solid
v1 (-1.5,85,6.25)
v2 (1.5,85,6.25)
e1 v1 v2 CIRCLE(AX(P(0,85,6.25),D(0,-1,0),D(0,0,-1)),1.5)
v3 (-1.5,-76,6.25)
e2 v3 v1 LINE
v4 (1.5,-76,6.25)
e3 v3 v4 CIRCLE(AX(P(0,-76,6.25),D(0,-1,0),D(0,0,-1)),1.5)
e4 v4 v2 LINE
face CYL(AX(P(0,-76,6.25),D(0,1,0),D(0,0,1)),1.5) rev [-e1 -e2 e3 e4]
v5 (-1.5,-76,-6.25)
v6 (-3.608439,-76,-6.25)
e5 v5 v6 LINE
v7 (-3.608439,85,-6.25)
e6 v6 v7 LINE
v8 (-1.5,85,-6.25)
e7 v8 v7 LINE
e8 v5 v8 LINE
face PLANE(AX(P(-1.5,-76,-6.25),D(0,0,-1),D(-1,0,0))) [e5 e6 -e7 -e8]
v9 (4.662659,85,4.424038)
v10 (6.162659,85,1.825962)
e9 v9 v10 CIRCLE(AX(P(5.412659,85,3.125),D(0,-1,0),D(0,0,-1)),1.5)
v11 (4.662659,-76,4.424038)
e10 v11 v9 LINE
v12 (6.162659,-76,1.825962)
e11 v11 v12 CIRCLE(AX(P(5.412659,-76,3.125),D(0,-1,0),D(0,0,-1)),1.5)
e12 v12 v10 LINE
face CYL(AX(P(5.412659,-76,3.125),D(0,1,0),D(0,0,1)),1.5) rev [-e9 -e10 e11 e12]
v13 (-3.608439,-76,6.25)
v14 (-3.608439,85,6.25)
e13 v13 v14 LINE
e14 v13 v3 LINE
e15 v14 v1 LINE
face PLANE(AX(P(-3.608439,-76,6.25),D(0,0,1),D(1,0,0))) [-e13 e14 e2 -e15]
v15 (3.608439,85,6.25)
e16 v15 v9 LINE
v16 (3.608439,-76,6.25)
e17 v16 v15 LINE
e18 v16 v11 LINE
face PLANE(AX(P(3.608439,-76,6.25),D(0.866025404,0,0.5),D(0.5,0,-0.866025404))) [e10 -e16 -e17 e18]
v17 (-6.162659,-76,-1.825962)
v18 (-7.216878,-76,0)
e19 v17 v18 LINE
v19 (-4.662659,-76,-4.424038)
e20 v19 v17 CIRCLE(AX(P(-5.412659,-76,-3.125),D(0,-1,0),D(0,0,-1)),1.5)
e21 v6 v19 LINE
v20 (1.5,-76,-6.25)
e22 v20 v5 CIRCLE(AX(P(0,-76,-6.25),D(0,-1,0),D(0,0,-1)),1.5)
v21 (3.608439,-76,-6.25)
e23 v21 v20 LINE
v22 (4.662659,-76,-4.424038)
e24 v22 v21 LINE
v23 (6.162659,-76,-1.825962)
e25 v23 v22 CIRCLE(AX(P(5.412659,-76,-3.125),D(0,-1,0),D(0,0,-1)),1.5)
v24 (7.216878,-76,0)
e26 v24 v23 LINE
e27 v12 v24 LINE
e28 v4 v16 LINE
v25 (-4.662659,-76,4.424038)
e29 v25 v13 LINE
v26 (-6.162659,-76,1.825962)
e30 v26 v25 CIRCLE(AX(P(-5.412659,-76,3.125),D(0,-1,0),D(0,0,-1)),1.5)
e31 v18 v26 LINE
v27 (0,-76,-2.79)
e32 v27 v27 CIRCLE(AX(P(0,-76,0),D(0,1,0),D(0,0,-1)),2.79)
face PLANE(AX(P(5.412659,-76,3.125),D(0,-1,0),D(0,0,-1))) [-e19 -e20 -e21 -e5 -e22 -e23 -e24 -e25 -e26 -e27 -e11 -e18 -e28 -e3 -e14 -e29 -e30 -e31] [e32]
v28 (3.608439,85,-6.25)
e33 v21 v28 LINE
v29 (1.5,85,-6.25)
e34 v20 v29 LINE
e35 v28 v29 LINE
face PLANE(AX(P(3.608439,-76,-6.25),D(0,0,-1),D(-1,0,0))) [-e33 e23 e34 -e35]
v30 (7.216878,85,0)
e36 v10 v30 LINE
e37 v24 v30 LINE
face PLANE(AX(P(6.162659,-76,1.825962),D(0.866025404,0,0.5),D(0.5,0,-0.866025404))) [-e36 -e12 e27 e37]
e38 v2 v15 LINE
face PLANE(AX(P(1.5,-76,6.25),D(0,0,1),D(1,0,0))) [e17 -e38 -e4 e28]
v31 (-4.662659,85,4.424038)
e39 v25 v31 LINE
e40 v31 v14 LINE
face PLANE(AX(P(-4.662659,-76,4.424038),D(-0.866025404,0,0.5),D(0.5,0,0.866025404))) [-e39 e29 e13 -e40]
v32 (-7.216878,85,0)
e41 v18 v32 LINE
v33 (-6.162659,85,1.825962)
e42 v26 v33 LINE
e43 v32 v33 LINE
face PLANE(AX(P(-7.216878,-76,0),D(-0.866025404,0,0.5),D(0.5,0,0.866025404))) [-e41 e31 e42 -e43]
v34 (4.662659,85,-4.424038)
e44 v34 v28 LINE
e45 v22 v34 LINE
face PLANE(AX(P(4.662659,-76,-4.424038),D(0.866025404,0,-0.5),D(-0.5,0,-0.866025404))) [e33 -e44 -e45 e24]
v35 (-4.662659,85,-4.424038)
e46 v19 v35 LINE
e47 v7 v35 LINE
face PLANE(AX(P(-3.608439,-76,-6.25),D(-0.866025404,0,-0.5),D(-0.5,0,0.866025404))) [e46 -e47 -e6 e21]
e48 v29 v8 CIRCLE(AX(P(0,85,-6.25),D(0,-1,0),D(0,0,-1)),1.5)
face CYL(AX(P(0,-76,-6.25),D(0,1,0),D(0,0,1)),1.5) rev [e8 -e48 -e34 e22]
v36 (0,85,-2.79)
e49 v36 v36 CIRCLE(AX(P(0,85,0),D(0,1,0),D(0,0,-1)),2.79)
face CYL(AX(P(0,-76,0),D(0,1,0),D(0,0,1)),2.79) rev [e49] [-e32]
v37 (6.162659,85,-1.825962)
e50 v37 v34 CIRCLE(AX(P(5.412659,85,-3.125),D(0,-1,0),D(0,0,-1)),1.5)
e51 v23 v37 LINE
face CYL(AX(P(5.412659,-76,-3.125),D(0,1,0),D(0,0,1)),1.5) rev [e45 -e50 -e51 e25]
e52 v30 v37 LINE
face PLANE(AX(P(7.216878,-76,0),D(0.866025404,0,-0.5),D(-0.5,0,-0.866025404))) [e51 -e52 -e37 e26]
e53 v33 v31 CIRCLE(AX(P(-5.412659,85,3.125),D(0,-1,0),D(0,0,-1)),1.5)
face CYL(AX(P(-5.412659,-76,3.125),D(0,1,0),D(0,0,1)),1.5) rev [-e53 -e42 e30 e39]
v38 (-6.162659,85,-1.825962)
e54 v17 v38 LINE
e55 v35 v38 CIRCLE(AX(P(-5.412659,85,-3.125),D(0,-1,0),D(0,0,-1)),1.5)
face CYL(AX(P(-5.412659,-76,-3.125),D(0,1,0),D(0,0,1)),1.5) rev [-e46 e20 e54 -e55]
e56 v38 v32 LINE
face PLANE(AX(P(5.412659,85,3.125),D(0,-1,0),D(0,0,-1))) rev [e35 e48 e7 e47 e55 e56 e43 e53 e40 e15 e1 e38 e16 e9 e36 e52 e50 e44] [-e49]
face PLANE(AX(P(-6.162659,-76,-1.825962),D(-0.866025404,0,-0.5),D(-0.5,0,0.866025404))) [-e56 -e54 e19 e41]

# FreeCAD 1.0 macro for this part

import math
import FreeCAD as App
import Part
import Sketcher
from FreeCAD import Vector
Q = App.Units.Quantity

doc = App.newDocument("Part")
body = doc.addObject("PartDesign::Body", "Body")

sketch1 = doc.addObject("Sketcher::SketchObject", "Sketch")
body.addObject(sketch1)
sketch1.AttachmentSupport = (doc.XZ_Plane, [""])
sketch1.MapMode = "FlatFace"
sketch1.AttachmentOffset = App.Placement(Vector(0, 0, -85), App.Rotation())
sketch1.addGeometry(Part.LineSegment(Vector(6.2, 1.8, 0), Vector(7.2, 0, 0)), False)
sketch1.addGeometry(Part.LineSegment(Vector(7.2, 0, 0), Vector(6.2, -1.8, 0)), False)
sketch1.addGeometry(Part.ArcOfCircle(Part.Circle(Vector(5.4, -3.1, 0), Vector(0, 0, 1), 1.5), math.radians(60), math.radians(240)), False)
sketch1.addGeometry(Part.LineSegment(Vector(4.7, -4.4, 0), Vector(3.6, -6.2, 0)), False)
sketch1.addGeometry(Part.LineSegment(Vector(3.6, -6.2, 0), Vector(1.5, -6.2, 0)), False)
sketch1.addGeometry(Part.ArcOfCircle(Part.Circle(Vector(0, -6.2, 0), Vector(0, 0, 1), 1.5), math.radians(0), math.radians(180)), False)
sketch1.addGeometry(Part.LineSegment(Vector(-1.5, -6.2, 0), Vector(-3.6, -6.2, 0)), False)
sketch1.addGeometry(Part.LineSegment(Vector(-3.6, -6.2, 0), Vector(-4.7, -4.4, 0)), False)
sketch1.addGeometry(Part.ArcOfCircle(Part.Circle(Vector(-5.4, -3.1, 0), Vector(0, 0, 1), 1.5), math.radians(-60), math.radians(120)), False)
sketch1.addGeometry(Part.LineSegment(Vector(-6.2, -1.8, 0), Vector(-7.2, 0, 0)), False)
sketch1.addGeometry(Part.LineSegment(Vector(-7.2, 0, 0), Vector(-6.2, 1.8, 0)), False)
sketch1.addGeometry(Part.ArcOfCircle(Part.Circle(Vector(-5.4, 3.1, 0), Vector(0, 0, 1), 1.5), math.radians(-120), math.radians(60)), False)
sketch1.addGeometry(Part.LineSegment(Vector(-4.7, 4.4, 0), Vector(-3.6, 6.2, 0)), False)
sketch1.addGeometry(Part.LineSegment(Vector(-3.6, 6.2, 0), Vector(-1.5, 6.2, 0)), False)
sketch1.addGeometry(Part.ArcOfCircle(Part.Circle(Vector(0, 6.2, 0), Vector(0, 0, 1), 1.5), math.radians(180), math.radians(360)), False)
sketch1.addGeometry(Part.LineSegment(Vector(1.5, 6.2, 0), Vector(3.6, 6.2, 0)), False)
sketch1.addGeometry(Part.LineSegment(Vector(3.6, 6.2, 0), Vector(4.7, 4.4, 0)), False)
sketch1.addGeometry(Part.ArcOfCircle(Part.Circle(Vector(5.4, 3.1, 0), Vector(0, 0, 1), 1.5), math.radians(120), math.radians(300)), False)
sketch1.addGeometry(Part.Circle(Vector(0, 0, 0), Vector(0, 0, 1), 2.8), False)
sketch1.addConstraint(Sketcher.Constraint("Coincident", 0, 2, 1, 1))
sketch1.addConstraint(Sketcher.Constraint("Coincident", 1, 2, 2, 1))
sketch1.addConstraint(Sketcher.Constraint("Coincident", 2, 2, 3, 1))
sketch1.addConstraint(Sketcher.Constraint("Coincident", 3, 2, 4, 1))
sketch1.addConstraint(Sketcher.Constraint("Coincident", 4, 2, 5, 1))
sketch1.addConstraint(Sketcher.Constraint("Coincident", 5, 2, 6, 1))
sketch1.addConstraint(Sketcher.Constraint("Coincident", 6, 2, 7, 1))
sketch1.addConstraint(Sketcher.Constraint("Coincident", 7, 2, 8, 1))
sketch1.addConstraint(Sketcher.Constraint("Coincident", 8, 2, 9, 1))
sketch1.addConstraint(Sketcher.Constraint("Coincident", 9, 2, 10, 1))
sketch1.addConstraint(Sketcher.Constraint("Coincident", 10, 2, 11, 1))
sketch1.addConstraint(Sketcher.Constraint("Coincident", 11, 2, 12, 1))
sketch1.addConstraint(Sketcher.Constraint("Coincident", 12, 2, 13, 1))
sketch1.addConstraint(Sketcher.Constraint("Coincident", 13, 2, 14, 1))
sketch1.addConstraint(Sketcher.Constraint("Coincident", 14, 2, 15, 1))
sketch1.addConstraint(Sketcher.Constraint("Coincident", 15, 2, 16, 1))
sketch1.addConstraint(Sketcher.Constraint("Coincident", 16, 2, 17, 1))
sketch1.addConstraint(Sketcher.Constraint("Coincident", 17, 2, 0, 1))
sketch1.addConstraint(Sketcher.Constraint("Horizontal", 4))
sketch1.addConstraint(Sketcher.Constraint("Horizontal", 6))
sketch1.addConstraint(Sketcher.Constraint("Horizontal", 13))
sketch1.addConstraint(Sketcher.Constraint("Horizontal", 15))
sketch1.addConstraint(Sketcher.Constraint("Coincident", 18, 3, -1, 1))
sketch1.addConstraint(Sketcher.Constraint("Equal", 2, 5))
sketch1.addConstraint(Sketcher.Constraint("Equal", 5, 8))
sketch1.addConstraint(Sketcher.Constraint("Equal", 8, 11))
sketch1.addConstraint(Sketcher.Constraint("Equal", 11, 14))
sketch1.addConstraint(Sketcher.Constraint("Equal", 14, 17))
sketch1.addConstraint(Sketcher.Constraint("Symmetric", 2, 3, 11, 3, -1, 1))
sketch1.addConstraint(Sketcher.Constraint("Symmetric", 5, 3, 14, 3, -1, 1))
sketch1.addConstraint(Sketcher.Constraint("Symmetric", 8, 3, 17, 3, -1, 1))
sketch1.addConstraint(Sketcher.Constraint("Symmetric", 0, 2, 9, 2, -1, 1))
sketch1.addConstraint(Sketcher.Constraint("Symmetric", 3, 2, 12, 2, -1, 1))
sketch1.addConstraint(Sketcher.Constraint("Symmetric", 6, 2, 15, 2, -1, 1))
sketch1.addConstraint(Sketcher.Constraint("Symmetric", 2, 3, 8, 3, -2))
sketch1.addConstraint(Sketcher.Constraint("Symmetric", 4, 2, 5, 2, -2))
sketch1.addConstraint(Sketcher.Constraint("PointOnObject", 0, 2, -1))
sketch1.addConstraint(Sketcher.Constraint("Parallel", 1, 3))
sketch1.addConstraint(Sketcher.Constraint("Parallel", 0, 7))
sketch1.addConstraint(Sketcher.Constraint("Parallel", 7, 9))
sketch1.addConstraint(Sketcher.Constraint("Parallel", 3, 10))
sketch1.addConstraint(Sketcher.Constraint("Parallel", 10, 12))
sketch1.addConstraint(Sketcher.Constraint("Parallel", 9, 16))
sketch1.addConstraint(Sketcher.Constraint("Horizontal", 5, 3, 3, 2))
sketch1.addConstraint(Sketcher.Constraint("Horizontal", 2, 2, 7, 2))
sketch1.addConstraint(Sketcher.Constraint("Horizontal", 1, 2, 8, 2))
sketch1.addConstraint(Sketcher.Constraint("Equal", 1, 3))
sketch1.addConstraint(Sketcher.Constraint("Radius", 2, Q("1.5 mm")))
sketch1.addConstraint(Sketcher.Constraint("Diameter", 18, Q("5.58 mm")))
sketch1.addConstraint(Sketcher.Constraint("Angle", 0, Q("-60 deg")))
sketch1.addConstraint(Sketcher.Constraint("DistanceY", 5, 3, 14, 3, Q("12.5 mm")))
sketch1.addConstraint(Sketcher.Constraint("DistanceX", 2, 2, 1, 2, Q("1.5 mm")))
sketch1.addConstraint(Sketcher.Constraint("DistanceY", 8, 3, 11, 3, Q("6.25 mm")))
sketch1.addConstraint(Sketcher.Constraint("DistanceX", 4, 2, 4, 1, Q("2.108439 mm")))
pad1 = doc.addObject("PartDesign::Pad", "Pad")
body.addObject(pad1)
pad1.Profile = sketch1
pad1.Length = 161

doc.recompute()
